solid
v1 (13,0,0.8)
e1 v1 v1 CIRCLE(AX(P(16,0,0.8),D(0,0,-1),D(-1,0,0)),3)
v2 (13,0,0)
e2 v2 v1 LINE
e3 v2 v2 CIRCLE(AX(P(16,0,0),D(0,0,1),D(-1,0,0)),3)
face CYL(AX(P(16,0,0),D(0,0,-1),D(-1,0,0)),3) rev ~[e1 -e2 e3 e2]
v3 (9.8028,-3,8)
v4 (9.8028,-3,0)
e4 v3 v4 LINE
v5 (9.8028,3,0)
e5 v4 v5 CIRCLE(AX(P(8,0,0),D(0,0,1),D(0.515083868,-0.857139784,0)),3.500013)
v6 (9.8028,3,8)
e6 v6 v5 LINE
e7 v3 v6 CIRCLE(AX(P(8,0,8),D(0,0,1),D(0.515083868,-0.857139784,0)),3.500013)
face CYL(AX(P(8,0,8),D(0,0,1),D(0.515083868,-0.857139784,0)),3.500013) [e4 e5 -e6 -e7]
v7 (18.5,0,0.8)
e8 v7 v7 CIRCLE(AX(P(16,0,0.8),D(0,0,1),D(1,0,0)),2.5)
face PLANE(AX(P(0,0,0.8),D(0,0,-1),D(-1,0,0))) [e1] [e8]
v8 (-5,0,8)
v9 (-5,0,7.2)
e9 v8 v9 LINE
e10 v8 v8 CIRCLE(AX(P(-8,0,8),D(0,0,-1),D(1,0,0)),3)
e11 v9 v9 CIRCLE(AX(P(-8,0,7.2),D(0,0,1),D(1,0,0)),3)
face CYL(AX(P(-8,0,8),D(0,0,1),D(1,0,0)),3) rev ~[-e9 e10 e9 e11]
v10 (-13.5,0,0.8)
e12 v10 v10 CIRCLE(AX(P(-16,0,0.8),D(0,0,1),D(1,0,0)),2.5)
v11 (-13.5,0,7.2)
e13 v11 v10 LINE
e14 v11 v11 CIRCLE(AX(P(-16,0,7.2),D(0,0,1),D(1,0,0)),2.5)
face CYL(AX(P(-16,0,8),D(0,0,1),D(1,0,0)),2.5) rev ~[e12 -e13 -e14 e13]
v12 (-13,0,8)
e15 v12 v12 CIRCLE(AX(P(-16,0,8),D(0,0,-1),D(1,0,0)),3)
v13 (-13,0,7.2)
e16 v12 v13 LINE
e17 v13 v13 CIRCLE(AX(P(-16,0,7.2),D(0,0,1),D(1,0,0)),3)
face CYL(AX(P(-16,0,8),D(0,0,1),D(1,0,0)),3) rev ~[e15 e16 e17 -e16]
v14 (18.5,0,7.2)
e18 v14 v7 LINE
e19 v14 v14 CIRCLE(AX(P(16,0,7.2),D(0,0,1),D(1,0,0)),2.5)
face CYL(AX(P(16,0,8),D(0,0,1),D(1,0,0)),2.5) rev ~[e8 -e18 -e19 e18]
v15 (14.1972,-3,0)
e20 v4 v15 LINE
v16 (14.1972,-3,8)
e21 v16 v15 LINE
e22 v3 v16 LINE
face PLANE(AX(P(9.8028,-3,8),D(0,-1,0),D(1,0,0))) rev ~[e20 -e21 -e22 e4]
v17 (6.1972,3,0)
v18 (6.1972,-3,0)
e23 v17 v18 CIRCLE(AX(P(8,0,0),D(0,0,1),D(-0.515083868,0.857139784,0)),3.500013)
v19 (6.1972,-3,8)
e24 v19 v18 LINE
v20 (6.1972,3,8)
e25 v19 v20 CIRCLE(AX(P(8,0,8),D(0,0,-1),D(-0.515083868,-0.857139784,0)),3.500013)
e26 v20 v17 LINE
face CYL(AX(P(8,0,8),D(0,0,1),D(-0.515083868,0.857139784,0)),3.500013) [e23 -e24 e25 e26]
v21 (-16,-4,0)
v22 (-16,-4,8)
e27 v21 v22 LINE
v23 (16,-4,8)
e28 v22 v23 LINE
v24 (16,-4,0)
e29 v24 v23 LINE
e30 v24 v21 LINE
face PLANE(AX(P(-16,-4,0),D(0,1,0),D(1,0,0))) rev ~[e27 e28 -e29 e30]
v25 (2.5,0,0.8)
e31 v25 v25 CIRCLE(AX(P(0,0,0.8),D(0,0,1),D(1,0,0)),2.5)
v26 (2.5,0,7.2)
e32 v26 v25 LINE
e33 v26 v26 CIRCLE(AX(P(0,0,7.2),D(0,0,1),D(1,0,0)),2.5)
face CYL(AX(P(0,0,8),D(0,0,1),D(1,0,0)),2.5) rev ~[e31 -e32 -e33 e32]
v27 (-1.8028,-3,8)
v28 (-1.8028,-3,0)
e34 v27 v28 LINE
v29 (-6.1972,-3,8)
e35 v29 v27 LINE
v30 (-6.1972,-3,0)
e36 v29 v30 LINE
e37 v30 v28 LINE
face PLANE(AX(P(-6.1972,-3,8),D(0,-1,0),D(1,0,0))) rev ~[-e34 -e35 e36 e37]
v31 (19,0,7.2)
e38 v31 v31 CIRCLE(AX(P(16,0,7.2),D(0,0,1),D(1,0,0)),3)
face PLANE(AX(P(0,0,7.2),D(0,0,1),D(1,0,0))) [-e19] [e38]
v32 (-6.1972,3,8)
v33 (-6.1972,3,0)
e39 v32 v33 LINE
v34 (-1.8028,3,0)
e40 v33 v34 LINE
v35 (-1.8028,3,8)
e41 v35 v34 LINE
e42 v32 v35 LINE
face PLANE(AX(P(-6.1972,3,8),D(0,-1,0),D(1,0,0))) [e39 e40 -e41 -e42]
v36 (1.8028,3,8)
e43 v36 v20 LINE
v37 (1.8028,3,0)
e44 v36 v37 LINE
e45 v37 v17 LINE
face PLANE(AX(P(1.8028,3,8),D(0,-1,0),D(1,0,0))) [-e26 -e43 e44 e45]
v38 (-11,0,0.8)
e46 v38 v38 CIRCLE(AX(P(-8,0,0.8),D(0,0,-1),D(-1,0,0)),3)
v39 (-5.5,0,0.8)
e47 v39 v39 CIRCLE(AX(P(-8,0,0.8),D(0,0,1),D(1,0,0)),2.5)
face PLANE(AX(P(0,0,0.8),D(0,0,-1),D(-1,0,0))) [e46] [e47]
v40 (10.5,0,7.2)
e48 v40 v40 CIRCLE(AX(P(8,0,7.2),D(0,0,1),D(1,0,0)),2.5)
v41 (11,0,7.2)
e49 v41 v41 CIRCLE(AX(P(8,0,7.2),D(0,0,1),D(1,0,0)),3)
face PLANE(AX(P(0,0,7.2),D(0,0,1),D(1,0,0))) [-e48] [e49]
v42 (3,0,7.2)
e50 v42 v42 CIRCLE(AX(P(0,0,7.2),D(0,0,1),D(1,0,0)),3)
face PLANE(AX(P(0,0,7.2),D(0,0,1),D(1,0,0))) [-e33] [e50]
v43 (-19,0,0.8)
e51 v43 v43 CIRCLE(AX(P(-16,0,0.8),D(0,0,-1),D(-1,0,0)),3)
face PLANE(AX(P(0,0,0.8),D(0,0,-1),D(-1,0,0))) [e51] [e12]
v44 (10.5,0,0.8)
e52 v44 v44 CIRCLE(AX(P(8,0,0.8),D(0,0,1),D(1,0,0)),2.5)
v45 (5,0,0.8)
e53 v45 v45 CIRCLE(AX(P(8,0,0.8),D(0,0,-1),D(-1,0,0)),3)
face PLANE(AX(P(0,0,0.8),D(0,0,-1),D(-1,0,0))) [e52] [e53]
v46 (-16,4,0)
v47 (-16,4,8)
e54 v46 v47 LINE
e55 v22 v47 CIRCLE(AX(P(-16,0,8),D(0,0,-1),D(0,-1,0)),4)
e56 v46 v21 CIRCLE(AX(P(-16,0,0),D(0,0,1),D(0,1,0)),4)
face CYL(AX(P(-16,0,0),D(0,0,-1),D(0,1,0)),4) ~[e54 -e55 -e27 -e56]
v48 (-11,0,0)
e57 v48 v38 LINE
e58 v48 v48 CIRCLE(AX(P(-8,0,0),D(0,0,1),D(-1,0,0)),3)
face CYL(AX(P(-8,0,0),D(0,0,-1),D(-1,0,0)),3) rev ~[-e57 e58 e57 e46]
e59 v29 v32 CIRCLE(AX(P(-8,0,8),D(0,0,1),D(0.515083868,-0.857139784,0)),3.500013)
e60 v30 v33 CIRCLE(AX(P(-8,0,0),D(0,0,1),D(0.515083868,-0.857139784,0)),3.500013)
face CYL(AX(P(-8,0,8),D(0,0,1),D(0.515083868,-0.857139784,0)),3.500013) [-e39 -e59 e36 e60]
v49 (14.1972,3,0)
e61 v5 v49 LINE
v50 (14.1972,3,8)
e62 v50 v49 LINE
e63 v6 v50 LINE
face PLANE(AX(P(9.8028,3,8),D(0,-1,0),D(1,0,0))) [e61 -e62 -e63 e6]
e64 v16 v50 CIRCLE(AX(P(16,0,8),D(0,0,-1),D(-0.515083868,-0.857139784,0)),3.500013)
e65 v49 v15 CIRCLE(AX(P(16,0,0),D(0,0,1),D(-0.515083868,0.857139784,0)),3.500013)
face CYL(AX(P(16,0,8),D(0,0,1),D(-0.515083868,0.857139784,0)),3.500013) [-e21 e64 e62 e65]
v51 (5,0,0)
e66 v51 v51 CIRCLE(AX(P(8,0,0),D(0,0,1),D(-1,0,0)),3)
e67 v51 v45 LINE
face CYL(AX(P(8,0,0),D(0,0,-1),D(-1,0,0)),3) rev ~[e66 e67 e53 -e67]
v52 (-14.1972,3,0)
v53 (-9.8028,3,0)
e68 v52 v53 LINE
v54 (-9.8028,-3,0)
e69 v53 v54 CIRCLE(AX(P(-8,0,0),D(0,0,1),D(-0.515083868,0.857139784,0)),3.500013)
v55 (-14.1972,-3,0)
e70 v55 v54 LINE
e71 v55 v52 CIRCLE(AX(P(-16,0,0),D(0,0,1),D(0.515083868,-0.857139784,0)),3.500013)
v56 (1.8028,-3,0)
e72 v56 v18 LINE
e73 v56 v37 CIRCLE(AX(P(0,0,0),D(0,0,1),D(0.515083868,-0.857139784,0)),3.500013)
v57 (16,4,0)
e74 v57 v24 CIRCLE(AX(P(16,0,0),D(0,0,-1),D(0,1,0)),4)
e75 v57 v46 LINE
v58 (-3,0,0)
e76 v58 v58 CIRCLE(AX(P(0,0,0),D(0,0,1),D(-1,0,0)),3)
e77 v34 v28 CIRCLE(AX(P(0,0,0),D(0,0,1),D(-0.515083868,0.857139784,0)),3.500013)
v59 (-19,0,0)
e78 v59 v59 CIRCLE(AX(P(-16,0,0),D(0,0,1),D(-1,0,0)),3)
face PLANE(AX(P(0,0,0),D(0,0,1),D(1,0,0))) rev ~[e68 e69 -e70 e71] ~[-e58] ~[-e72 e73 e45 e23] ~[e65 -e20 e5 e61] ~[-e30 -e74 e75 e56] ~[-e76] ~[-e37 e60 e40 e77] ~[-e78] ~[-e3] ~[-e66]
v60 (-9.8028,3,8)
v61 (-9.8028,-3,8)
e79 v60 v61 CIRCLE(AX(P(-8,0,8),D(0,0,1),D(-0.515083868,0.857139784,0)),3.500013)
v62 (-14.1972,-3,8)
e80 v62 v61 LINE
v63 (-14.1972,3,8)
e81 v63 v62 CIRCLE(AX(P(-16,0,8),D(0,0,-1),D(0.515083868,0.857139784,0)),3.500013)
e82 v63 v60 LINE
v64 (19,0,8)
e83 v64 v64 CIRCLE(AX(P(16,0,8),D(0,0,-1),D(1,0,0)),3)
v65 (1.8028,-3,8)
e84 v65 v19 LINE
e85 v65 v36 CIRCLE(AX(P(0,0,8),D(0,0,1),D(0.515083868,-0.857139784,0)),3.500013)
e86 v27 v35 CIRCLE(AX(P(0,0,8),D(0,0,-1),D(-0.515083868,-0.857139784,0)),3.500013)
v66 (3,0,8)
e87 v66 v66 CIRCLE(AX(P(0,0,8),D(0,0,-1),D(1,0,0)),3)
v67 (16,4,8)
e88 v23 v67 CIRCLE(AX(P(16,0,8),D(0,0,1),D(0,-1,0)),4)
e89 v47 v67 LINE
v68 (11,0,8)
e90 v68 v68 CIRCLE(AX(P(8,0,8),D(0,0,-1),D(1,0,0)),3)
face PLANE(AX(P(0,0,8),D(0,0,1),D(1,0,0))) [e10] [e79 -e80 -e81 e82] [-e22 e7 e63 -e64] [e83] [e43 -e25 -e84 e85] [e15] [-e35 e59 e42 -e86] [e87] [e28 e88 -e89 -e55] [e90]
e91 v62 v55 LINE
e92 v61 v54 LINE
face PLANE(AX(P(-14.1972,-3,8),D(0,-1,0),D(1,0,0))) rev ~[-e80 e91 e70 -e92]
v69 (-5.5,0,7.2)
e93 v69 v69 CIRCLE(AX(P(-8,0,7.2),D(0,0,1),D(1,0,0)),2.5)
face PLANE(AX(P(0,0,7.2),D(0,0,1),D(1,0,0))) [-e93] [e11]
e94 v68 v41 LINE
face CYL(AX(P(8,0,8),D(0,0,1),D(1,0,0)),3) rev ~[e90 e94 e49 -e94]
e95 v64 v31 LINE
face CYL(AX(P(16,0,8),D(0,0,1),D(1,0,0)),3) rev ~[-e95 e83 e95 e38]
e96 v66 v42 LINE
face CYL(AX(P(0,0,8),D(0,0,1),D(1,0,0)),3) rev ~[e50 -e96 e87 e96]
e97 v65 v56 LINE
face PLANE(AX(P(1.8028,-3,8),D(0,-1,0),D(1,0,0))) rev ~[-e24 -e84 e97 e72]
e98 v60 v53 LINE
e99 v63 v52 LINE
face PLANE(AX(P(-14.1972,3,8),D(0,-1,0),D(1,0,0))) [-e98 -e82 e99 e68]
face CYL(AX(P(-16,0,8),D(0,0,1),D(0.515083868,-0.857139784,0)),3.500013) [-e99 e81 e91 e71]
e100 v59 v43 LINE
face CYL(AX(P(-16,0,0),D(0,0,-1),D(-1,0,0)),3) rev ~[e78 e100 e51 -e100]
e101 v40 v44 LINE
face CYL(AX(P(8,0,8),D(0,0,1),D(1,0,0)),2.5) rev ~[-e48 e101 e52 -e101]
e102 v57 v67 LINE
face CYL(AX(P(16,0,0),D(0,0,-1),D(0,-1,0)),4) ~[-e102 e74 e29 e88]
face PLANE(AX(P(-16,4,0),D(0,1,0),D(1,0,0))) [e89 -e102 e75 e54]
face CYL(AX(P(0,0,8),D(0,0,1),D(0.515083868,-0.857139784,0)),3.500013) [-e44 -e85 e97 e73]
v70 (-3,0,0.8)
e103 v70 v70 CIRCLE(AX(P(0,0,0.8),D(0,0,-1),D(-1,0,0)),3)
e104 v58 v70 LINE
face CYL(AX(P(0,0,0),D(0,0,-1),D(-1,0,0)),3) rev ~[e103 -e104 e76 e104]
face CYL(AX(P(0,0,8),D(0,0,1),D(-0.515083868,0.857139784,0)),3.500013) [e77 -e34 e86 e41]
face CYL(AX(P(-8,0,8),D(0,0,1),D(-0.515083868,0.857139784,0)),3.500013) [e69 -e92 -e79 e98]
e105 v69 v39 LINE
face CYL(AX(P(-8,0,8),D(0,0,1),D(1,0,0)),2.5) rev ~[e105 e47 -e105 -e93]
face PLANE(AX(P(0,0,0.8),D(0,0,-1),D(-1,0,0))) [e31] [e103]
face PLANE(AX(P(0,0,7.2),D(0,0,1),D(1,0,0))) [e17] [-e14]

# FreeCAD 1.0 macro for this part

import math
import FreeCAD as App
import Part
import Sketcher

V = App.Vector

doc = App.newDocument("Part")
body = doc.addObject("PartDesign::Body", "Body")

# Sketch on XY plane
sketch1 = body.newObject("Sketcher::SketchObject", "Sketch")
sketch1.AttachmentSupport = (doc.getObject("XY_Plane"), [""])
sketch1.MapMode = "FlatFace"
sketch1.addGeometry([
    Part.ArcOfCircle(Part.Circle(V(-16, 0, 0), V(0, 0, 1), 4), math.radians(90), math.radians(270)),
    Part.LineSegment(V(-16, -4, 0), V(16, -4, 0)),
    Part.ArcOfCircle(Part.Circle(V(16, 0, 0), V(0, 0, 1), 4), math.radians(-90), math.radians(90)),
    Part.LineSegment(V(16, 4, 0), V(-16, 4, 0)),
], False)
sketch1.addConstraint([
    Sketcher.Constraint("Tangent", 0, 2, 1, 1),
    Sketcher.Constraint("Tangent", 1, 2, 2, 1),
    Sketcher.Constraint("Tangent", 2, 2, 3, 1),
    Sketcher.Constraint("Tangent", 3, 2, 0, 1),
    Sketcher.Constraint("Horizontal", 1),
    Sketcher.Constraint("Horizontal", 3),
    Sketcher.Constraint("Symmetric", 0, 3, 2, 3, -1, 1),
    Sketcher.Constraint("Radius", 0, 4.0),
    Sketcher.Constraint("DistanceX", 1, 1, 1, 2, 32.0),
])
pad1 = body.newObject("PartDesign::Pad", "Pad")
pad1.Profile = sketch1
pad1.Length = 8

# Sketch on XY plane
sketch2 = body.newObject("Sketcher::SketchObject", "Sketch001")
sketch2.AttachmentSupport = (doc.getObject("XY_Plane"), [""])
sketch2.MapMode = "FlatFace"
sketch2.AttachmentOffset = App.Placement(V(0, 0, 8), App.Rotation())
sketch2.addGeometry([
    Part.Circle(V(-16, 0, 0), V(0, 0, 1), 2.5),  # 0
    Part.Circle(V(16, 0, 0), V(0, 0, 1), 2.5),  # 1
    Part.Circle(V(8, 0, 0), V(0, 0, 1), 2.5),  # 2
    Part.Circle(V(0, 0, 0), V(0, 0, 1), 2.5),  # 3
    Part.Circle(V(-8, 0, 0), V(0, 0, 1), 2.5),  # 4
], False)
sketch2.addConstraint([
    Sketcher.Constraint("Coincident", 3, 3, -1, 1),
    Sketcher.Constraint("Equal", 0, 1),
    Sketcher.Constraint("Equal", 1, 2),
    Sketcher.Constraint("Equal", 2, 3),
    Sketcher.Constraint("Equal", 3, 4),
    Sketcher.Constraint("Symmetric", 0, 3, 1, 3, -1, 1),
    Sketcher.Constraint("Symmetric", 2, 3, 4, 3, -1, 1),
    Sketcher.Constraint("PointOnObject", 0, 3, -1),
    Sketcher.Constraint("PointOnObject", 2, 3, -1),
    Sketcher.Constraint("Diameter", 0, 5.0),
    Sketcher.Constraint("DistanceX", -1, 1, 2, 3, 8.0),
    Sketcher.Constraint("DistanceX", 2, 3, 1, 3, 8.0),
])
pocket1 = body.newObject("PartDesign::Pocket", "Pocket")
pocket1.Profile = sketch2
pocket1.Type = "ThroughAll"

# Sketch on XY plane
sketch3 = body.newObject("Sketcher::SketchObject", "Sketch002")
sketch3.AttachmentSupport = (doc.getObject("XY_Plane"), [""])
sketch3.MapMode = "FlatFace"
sketch3.AttachmentOffset = App.Placement(V(0, 0, 8), App.Rotation())
sketch3.addGeometry([
    Part.Circle(V(16, 0, 0), V(0, 0, 1), 3),  # 0
    Part.Circle(V(16, 0, 0), V(0, 0, 1), 2.5),  # 1
    Part.Circle(V(-16, 0, 0), V(0, 0, 1), 3),  # 2
    Part.Circle(V(-16, 0, 0), V(0, 0, 1), 2.5),  # 3
    Part.Circle(V(-8, 0, 0), V(0, 0, 1), 3),  # 4
    Part.Circle(V(-8, 0, 0), V(0, 0, 1), 2.5),  # 5
    Part.Circle(V(0, 0, 0), V(0, 0, 1), 3),  # 6
    Part.Circle(V(0, 0, 0), V(0, 0, 1), 2.5),  # 7
    Part.Circle(V(8, 0, 0), V(0, 0, 1), 3),  # 8
    Part.Circle(V(8, 0, 0), V(0, 0, 1), 2.5),  # 9
], False)
sketch3.addConstraint([
    Sketcher.Constraint("Coincident", 6, 3, -1, 1),
    Sketcher.Constraint("Coincident", 7, 3, -1, 1),
    Sketcher.Constraint("Coincident", 1, 3, 0, 3),
    Sketcher.Constraint("Coincident", 3, 3, 2, 3),
    Sketcher.Constraint("Coincident", 5, 3, 4, 3),
    Sketcher.Constraint("Coincident", 9, 3, 8, 3),
    Sketcher.Constraint("Equal", 0, 2),
    Sketcher.Constraint("Equal", 1, 3),
    Sketcher.Constraint("Equal", 2, 4),
    Sketcher.Constraint("Equal", 3, 5),
    Sketcher.Constraint("Equal", 4, 6),
    Sketcher.Constraint("Equal", 5, 7),
    Sketcher.Constraint("Equal", 6, 8),
    Sketcher.Constraint("Equal", 7, 9),
    Sketcher.Constraint("Symmetric", 0, 3, 2, 3, -1, 1),
    Sketcher.Constraint("Symmetric", 4, 3, 8, 3, -1, 1),
    Sketcher.Constraint("PointOnObject", 0, 3, -1),
    Sketcher.Constraint("PointOnObject", 4, 3, -1),
    Sketcher.Constraint("Diameter", 0, 6.0),
    Sketcher.Constraint("Diameter", 1, 5.0),
    Sketcher.Constraint("DistanceX", 4, 3, -1, 1, 8.0),
    Sketcher.Constraint("DistanceX", 2, 3, 4, 3, 8.0),
])
pocket2 = body.newObject("PartDesign::Pocket", "Pocket001")
pocket2.Profile = sketch3
pocket2.Length = 0.8

# Sketch on XY plane
sketch4 = body.newObject("Sketcher::SketchObject", "Sketch003")
sketch4.AttachmentSupport = (doc.getObject("XY_Plane"), [""])
sketch4.MapMode = "FlatFace"
sketch4.addGeometry([
    Part.Circle(V(16, 0, 0), V(0, 0, 1), 3),  # 0
    Part.Circle(V(16, 0, 0), V(0, 0, 1), 2.5),  # 1
    Part.Circle(V(-16, 0, 0), V(0, 0, 1), 3),  # 2
    Part.Circle(V(-16, 0, 0), V(0, 0, 1), 2.5),  # 3
    Part.Circle(V(-8, 0, 0), V(0, 0, 1), 3),  # 4
    Part.Circle(V(-8, 0, 0), V(0, 0, 1), 2.5),  # 5
    Part.Circle(V(0, 0, 0), V(0, 0, 1), 3),  # 6
    Part.Circle(V(0, 0, 0), V(0, 0, 1), 2.5),  # 7
    Part.Circle(V(8, 0, 0), V(0, 0, 1), 3),  # 8
    Part.Circle(V(8, 0, 0), V(0, 0, 1), 2.5),  # 9
], False)
sketch4.addConstraint([
    Sketcher.Constraint("Coincident", 6, 3, -1, 1),
    Sketcher.Constraint("Coincident", 7, 3, -1, 1),
    Sketcher.Constraint("Coincident", 1, 3, 0, 3),
    Sketcher.Constraint("Coincident", 3, 3, 2, 3),
    Sketcher.Constraint("Coincident", 5, 3, 4, 3),
    Sketcher.Constraint("Coincident", 9, 3, 8, 3),
    Sketcher.Constraint("Equal", 0, 2),
    Sketcher.Constraint("Equal", 1, 3),
    Sketcher.Constraint("Equal", 2, 4),
    Sketcher.Constraint("Equal", 3, 5),
    Sketcher.Constraint("Equal", 4, 6),
    Sketcher.Constraint("Equal", 5, 7),
    Sketcher.Constraint("Equal", 6, 8),
    Sketcher.Constraint("Equal", 7, 9),
    Sketcher.Constraint("Symmetric", 0, 3, 2, 3, -1, 1),
    Sketcher.Constraint("Symmetric", 4, 3, 8, 3, -1, 1),
    Sketcher.Constraint("PointOnObject", 0, 3, -1),
    Sketcher.Constraint("PointOnObject", 4, 3, -1),
    Sketcher.Constraint("Diameter", 0, 6.0),
    Sketcher.Constraint("Diameter", 1, 5.0),
    Sketcher.Constraint("DistanceX", 4, 3, -1, 1, 8.0),
    Sketcher.Constraint("DistanceX", 2, 3, 4, 3, 8.0),
])
pocket3 = body.newObject("PartDesign::Pocket", "Pocket002")
pocket3.Profile = sketch4
pocket3.Length = 0.8
pocket3.Reversed = True

# Sketch on XY plane
sketch5 = body.newObject("Sketcher::SketchObject", "Sketch004")
sketch5.AttachmentSupport = (doc.getObject("XY_Plane"), [""])
sketch5.MapMode = "FlatFace"
sketch5.AttachmentOffset = App.Placement(V(0, 0, 8), App.Rotation())
sketch5.addGeometry([
    Part.ArcOfCircle(Part.Circle(V(-8, 0, 0), V(0, 0, 1), 3.500013), math.radians(121.003061), math.radians(238.996939)),  # 0
    Part.LineSegment(V(-9.8028, 3, 0), V(-14.1972, 3, 0)),  # 1
    Part.ArcOfCircle(Part.Circle(V(-16, 0, 0), V(0, 0, 1), 3.500013), math.radians(-58.996939), math.radians(58.996939)),  # 2
    Part.LineSegment(V(-14.1972, -3, 0), V(-9.8028, -3, 0)),  # 3
    Part.ArcOfCircle(Part.Circle(V(8, 0, 0), V(0, 0, 1), 3.500013), math.radians(-58.996939), math.radians(58.996939)),  # 4
    Part.LineSegment(V(9.8028, -3, 0), V(14.1972, -3, 0)),  # 5
    Part.ArcOfCircle(Part.Circle(V(16, 0, 0), V(0, 0, 1), 3.500013), math.radians(121.003061), math.radians(238.996939)),  # 6
    Part.LineSegment(V(14.1972, 3, 0), V(9.8028, 3, 0)),  # 7
    Part.ArcOfCircle(Part.Circle(V(0, 0, 0), V(0, 0, 1), 3.500013), math.radians(-58.996939), math.radians(58.996939)),  # 8
    Part.LineSegment(V(1.8028, -3, 0), V(6.1972, -3, 0)),  # 9
    Part.ArcOfCircle(Part.Circle(V(8, 0, 0), V(0, 0, 1), 3.500013), math.radians(121.003061), math.radians(238.996939)),  # 10
    Part.LineSegment(V(6.1972, 3, 0), V(1.8028, 3, 0)),  # 11
    Part.ArcOfCircle(Part.Circle(V(-8, 0, 0), V(0, 0, 1), 3.500013), math.radians(-58.996939), math.radians(58.996939)),  # 12
    Part.LineSegment(V(-6.1972, -3, 0), V(-1.8028, -3, 0)),  # 13
    Part.ArcOfCircle(Part.Circle(V(0, 0, 0), V(0, 0, 1), 3.500013), math.radians(121.003061), math.radians(238.996939)),  # 14
    Part.LineSegment(V(-1.8028, 3, 0), V(-6.1972, 3, 0)),  # 15
], False)
sketch5.addConstraint([
    Sketcher.Constraint("Coincident", 0, 1, 1, 1),
    Sketcher.Constraint("Coincident", 1, 2, 2, 2),
    Sketcher.Constraint("Coincident", 2, 1, 3, 1),
    Sketcher.Constraint("Coincident", 3, 2, 0, 2),
    Sketcher.Constraint("Coincident", 4, 1, 5, 1),
    Sketcher.Constraint("Coincident", 5, 2, 6, 2),
    Sketcher.Constraint("Coincident", 6, 1, 7, 1),
    Sketcher.Constraint("Coincident", 7, 2, 4, 2),
    Sketcher.Constraint("Coincident", 8, 1, 9, 1),
    Sketcher.Constraint("Coincident", 9, 2, 10, 2),
    Sketcher.Constraint("Coincident", 10, 1, 11, 1),
    Sketcher.Constraint("Coincident", 11, 2, 8, 2),
    Sketcher.Constraint("Coincident", 12, 1, 13, 1),
    Sketcher.Constraint("Coincident", 13, 2, 14, 2),
    Sketcher.Constraint("Coincident", 14, 1, 15, 1),
    Sketcher.Constraint("Coincident", 15, 2, 12, 2),
    Sketcher.Constraint("Horizontal", 1),
    Sketcher.Constraint("Horizontal", 3),
    Sketcher.Constraint("Horizontal", 5),
    Sketcher.Constraint("Horizontal", 7),
    Sketcher.Constraint("Horizontal", 9),
    Sketcher.Constraint("Horizontal", 11),
    Sketcher.Constraint("Horizontal", 13),
    Sketcher.Constraint("Horizontal", 15),
    Sketcher.Constraint("Coincident", 8, 3, -1, 1),
    Sketcher.Constraint("Coincident", 14, 3, -1, 1),
    Sketcher.Constraint("Coincident", 10, 3, 4, 3),
    Sketcher.Constraint("Coincident", 12, 3, 0, 3),
    Sketcher.Constraint("Equal", 0, 2),
    Sketcher.Constraint("Equal", 2, 4),
    Sketcher.Constraint("Equal", 4, 6),
    Sketcher.Constraint("Equal", 6, 8),
    Sketcher.Constraint("Equal", 8, 10),
    Sketcher.Constraint("Equal", 10, 12),
    Sketcher.Constraint("Equal", 12, 14),
    Sketcher.Constraint("Symmetric", 0, 3, 4, 3, -1, 1),
    Sketcher.Constraint("Symmetric", 2, 3, 6, 3, -1, 1),
    Sketcher.Constraint("Symmetric", 3, 2, 4, 1, -2),
    Sketcher.Constraint("Symmetric", 1, 2, 6, 1, -2),
    Sketcher.Constraint("Horizontal", 5, 2, 8, 1),
    Sketcher.Constraint("Horizontal", 7, 2, 10, 1),
    Sketcher.Constraint("Horizontal", 9, 2, 12, 1),
    Sketcher.Constraint("Horizontal", 11, 2, 14, 1),
    Sketcher.Constraint("Vertical", 1, 2, 2, 1),
    Sketcher.Constraint("Equal", 7, 9),
    Sketcher.Constraint("Radius", 0, 3.5),
    Sketcher.Constraint("DistanceX", 0, 3, -1, 1, 8.0),
    Sketcher.Constraint("DistanceX", 1, 2, 1, 1, 4.3944),
])
pocket4 = body.newObject("PartDesign::Pocket", "Pocket003")
pocket4.Profile = sketch5
pocket4.Type = "ThroughAll"

doc.recompute()
